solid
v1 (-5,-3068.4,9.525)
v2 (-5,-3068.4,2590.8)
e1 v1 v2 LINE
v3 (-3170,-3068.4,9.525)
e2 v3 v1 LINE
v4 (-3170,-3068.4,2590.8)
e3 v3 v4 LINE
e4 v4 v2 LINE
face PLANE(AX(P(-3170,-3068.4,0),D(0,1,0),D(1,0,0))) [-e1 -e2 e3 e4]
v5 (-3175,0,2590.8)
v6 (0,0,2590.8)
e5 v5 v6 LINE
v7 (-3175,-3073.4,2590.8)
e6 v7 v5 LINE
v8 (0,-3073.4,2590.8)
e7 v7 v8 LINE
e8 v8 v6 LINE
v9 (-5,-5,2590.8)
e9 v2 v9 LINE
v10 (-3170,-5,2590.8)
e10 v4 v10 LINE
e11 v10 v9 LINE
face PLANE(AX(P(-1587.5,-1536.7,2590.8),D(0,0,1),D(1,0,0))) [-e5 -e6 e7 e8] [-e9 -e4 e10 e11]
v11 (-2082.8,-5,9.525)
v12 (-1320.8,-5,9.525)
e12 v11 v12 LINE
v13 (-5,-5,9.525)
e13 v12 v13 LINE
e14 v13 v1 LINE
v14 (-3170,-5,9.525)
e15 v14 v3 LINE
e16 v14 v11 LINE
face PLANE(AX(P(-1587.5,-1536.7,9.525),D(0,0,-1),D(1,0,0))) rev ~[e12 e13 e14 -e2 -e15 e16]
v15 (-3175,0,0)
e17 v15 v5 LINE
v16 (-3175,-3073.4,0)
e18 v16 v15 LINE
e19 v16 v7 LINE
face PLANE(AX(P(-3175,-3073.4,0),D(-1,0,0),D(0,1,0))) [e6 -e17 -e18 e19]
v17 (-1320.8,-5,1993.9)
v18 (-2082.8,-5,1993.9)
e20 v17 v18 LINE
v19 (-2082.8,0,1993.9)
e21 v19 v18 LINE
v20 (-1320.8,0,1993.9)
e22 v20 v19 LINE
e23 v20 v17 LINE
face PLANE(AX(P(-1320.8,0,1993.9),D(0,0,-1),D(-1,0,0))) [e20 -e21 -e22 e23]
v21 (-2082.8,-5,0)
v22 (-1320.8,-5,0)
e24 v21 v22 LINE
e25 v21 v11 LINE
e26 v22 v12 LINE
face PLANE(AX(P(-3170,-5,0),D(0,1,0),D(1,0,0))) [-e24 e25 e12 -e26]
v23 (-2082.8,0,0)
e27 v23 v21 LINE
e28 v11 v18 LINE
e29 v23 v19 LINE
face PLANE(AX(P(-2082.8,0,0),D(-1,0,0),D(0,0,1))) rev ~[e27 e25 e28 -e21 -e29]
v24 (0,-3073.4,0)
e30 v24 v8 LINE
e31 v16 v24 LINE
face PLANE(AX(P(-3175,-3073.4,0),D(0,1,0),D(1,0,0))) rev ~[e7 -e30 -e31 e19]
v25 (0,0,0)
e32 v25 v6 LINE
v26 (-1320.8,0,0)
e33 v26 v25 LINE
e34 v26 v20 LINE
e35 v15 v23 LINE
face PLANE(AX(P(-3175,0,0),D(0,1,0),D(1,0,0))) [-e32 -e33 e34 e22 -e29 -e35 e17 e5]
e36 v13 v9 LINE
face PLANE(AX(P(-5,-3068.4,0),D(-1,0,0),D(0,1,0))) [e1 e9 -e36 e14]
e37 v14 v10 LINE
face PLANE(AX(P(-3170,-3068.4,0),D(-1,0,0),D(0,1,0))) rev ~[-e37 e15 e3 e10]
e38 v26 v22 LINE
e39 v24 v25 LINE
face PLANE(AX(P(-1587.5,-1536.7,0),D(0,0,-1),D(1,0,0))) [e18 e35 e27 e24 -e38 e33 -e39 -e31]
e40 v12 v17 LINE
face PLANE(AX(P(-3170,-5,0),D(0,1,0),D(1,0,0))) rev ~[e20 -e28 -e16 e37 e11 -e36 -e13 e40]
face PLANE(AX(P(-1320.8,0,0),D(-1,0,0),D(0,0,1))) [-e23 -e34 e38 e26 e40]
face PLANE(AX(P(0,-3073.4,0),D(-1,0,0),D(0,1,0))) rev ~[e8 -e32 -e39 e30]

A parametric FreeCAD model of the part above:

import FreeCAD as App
import Part
import Sketcher
Q = App.Units.Quantity


def add_polygon(sketch, points):
    """Adds a closed chain of lines whose ends are joined by coincident constraints."""
    first, n = sketch.GeometryCount, len(points)
    for a, b in zip(points, points[1:] + points[:1]):
        sketch.addGeometry(Part.LineSegment(App.Vector(*a, 0), App.Vector(*b, 0)), False)
    for i in range(n):
        sketch.addConstraint(Sketcher.Constraint("Coincident", first + i, 2, first + (i + 1) % n, 1))

doc = App.newDocument("Part")
params = doc.addObject("Spreadsheet::Sheet", "Params")
for row, (alias, value) in enumerate([
    ("sketch1_width", "125 in"),
    ("sketch1_height", "121 in"),
    ("pad1_length", "102 in"),
    ("sketch2_width", "30 in"),
    ("sketch2_height", "78.5 in"),
    ("pocket1_length", "4.25 in"),
    ("pad2_length", "0.375 in"),
], start=1):
    params.set(f"A{row}", alias)
    params.set(f"B{row}", "=" + value)
    params.setAlias(f"B{row}", alias)

body = doc.addObject("PartDesign::Body", "Body")

# Sketch on XY plane
sketch1 = body.newObject("Sketcher::SketchObject", "Sketch")
sketch1.AttachmentSupport = (doc.getObject("XY_Plane"), [""])
sketch1.MapMode = "FlatFace"
add_polygon(sketch1, [(-3175, 0), (-3175, -3073), (0, -3073), (0, 0)])  # lines 0-3
add_polygon(sketch1, [(-5, -3068), (-3170, -3068), (-3170, -5), (-5, -5)])  # lines 4-7
sketch1.addConstraint([
    Sketcher.Constraint("Vertical", 0),
    Sketcher.Constraint("Horizontal", 1),
    Sketcher.Constraint("Vertical", 2),
    Sketcher.Constraint("Horizontal", 3),
    Sketcher.Constraint("Horizontal", 4),
    Sketcher.Constraint("Vertical", 5),
    Sketcher.Constraint("Horizontal", 6),
    Sketcher.Constraint("Vertical", 7),
    Sketcher.Constraint("Coincident", 2, 2, -1, 1),
    Sketcher.Constraint("DistanceX", 1, 1, 1, 2, Q("125 in")),
    Sketcher.Constraint("DistanceY", 0, 2, 0, 1, Q("121 in")),
    Sketcher.Constraint("DistanceX", 4, 2, 4, 1, 3165.0),
    Sketcher.Constraint("DistanceY", 5, 1, 5, 2, 3063.4),
    Sketcher.Constraint("DistanceX", 4, 2, -1, 1, 3170.0),
    Sketcher.Constraint("DistanceY", 4, 2, -1, 1, 3068.4),
])
sketch1.setExpression("Constraints[17]", "Params.sketch1_width")
sketch1.setExpression("Constraints[18]", "Params.sketch1_height")
pad1 = body.newObject("PartDesign::Pad", "Pad")
pad1.Profile = sketch1
pad1.setExpression("Length", "Params.pad1_length")

# Sketch on XZ plane
sketch2 = body.newObject("Sketcher::SketchObject", "Sketch001")
sketch2.AttachmentSupport = (doc.getObject("XZ_Plane"), [""])
sketch2.MapMode = "FlatFace"
add_polygon(sketch2, [(-1321, 1994), (-1321, 0), (-2083, 0), (-2083, 1994)])  # lines 0-3
sketch2.addConstraint([
    Sketcher.Constraint("Vertical", 0),
    Sketcher.Constraint("Horizontal", 1),
    Sketcher.Constraint("Vertical", 2),
    Sketcher.Constraint("Horizontal", 3),
    Sketcher.Constraint("PointOnObject", 0, 2, -1),
    Sketcher.Constraint("DistanceX", 1, 2, 1, 1, Q("30 in")),
    Sketcher.Constraint("DistanceY", 0, 2, 0, 1, Q("78.5 in")),
    Sketcher.Constraint("DistanceX", 0, 2, -1, 1, Q("52 in")),
])
sketch2.setExpression("Constraints[9]", "Params.sketch2_width")
sketch2.setExpression("Constraints[10]", "Params.sketch2_height")
pocket1 = body.newObject("PartDesign::Pocket", "Pocket")
pocket1.Profile = sketch2
pocket1.setExpression("Length", "Params.pocket1_length")
pocket1.Reversed = True

# Sketch on XY plane
sketch3 = body.newObject("Sketcher::SketchObject", "Sketch002")
sketch3.AttachmentSupport = (doc.getObject("XY_Plane"), [""])
sketch3.MapMode = "FlatFace"
add_polygon(sketch3, [(-3170, -3068), (-3170, -5), (-5, -5), (-5, -3068)])  # lines 0-3
sketch3.addConstraint([
    Sketcher.Constraint("Vertical", 0),
    Sketcher.Constraint("Horizontal", 1),
    Sketcher.Constraint("Vertical", 2),
    Sketcher.Constraint("Horizontal", 3),
    Sketcher.Constraint("DistanceX", 1, 1, 1, 2, 3165.0),
    Sketcher.Constraint("DistanceY", 0, 1, 0, 2, 3063.4),
    Sketcher.Constraint("DistanceX", 0, 2, -1, 1, 3170.0),
    Sketcher.Constraint("DistanceY", 0, 2, -1, 1, 5.0),
])
pad2 = body.newObject("PartDesign::Pad", "Pad001")
pad2.Profile = sketch3
pad2.setExpression("Length", "Params.pad2_length")

doc.recompute()
